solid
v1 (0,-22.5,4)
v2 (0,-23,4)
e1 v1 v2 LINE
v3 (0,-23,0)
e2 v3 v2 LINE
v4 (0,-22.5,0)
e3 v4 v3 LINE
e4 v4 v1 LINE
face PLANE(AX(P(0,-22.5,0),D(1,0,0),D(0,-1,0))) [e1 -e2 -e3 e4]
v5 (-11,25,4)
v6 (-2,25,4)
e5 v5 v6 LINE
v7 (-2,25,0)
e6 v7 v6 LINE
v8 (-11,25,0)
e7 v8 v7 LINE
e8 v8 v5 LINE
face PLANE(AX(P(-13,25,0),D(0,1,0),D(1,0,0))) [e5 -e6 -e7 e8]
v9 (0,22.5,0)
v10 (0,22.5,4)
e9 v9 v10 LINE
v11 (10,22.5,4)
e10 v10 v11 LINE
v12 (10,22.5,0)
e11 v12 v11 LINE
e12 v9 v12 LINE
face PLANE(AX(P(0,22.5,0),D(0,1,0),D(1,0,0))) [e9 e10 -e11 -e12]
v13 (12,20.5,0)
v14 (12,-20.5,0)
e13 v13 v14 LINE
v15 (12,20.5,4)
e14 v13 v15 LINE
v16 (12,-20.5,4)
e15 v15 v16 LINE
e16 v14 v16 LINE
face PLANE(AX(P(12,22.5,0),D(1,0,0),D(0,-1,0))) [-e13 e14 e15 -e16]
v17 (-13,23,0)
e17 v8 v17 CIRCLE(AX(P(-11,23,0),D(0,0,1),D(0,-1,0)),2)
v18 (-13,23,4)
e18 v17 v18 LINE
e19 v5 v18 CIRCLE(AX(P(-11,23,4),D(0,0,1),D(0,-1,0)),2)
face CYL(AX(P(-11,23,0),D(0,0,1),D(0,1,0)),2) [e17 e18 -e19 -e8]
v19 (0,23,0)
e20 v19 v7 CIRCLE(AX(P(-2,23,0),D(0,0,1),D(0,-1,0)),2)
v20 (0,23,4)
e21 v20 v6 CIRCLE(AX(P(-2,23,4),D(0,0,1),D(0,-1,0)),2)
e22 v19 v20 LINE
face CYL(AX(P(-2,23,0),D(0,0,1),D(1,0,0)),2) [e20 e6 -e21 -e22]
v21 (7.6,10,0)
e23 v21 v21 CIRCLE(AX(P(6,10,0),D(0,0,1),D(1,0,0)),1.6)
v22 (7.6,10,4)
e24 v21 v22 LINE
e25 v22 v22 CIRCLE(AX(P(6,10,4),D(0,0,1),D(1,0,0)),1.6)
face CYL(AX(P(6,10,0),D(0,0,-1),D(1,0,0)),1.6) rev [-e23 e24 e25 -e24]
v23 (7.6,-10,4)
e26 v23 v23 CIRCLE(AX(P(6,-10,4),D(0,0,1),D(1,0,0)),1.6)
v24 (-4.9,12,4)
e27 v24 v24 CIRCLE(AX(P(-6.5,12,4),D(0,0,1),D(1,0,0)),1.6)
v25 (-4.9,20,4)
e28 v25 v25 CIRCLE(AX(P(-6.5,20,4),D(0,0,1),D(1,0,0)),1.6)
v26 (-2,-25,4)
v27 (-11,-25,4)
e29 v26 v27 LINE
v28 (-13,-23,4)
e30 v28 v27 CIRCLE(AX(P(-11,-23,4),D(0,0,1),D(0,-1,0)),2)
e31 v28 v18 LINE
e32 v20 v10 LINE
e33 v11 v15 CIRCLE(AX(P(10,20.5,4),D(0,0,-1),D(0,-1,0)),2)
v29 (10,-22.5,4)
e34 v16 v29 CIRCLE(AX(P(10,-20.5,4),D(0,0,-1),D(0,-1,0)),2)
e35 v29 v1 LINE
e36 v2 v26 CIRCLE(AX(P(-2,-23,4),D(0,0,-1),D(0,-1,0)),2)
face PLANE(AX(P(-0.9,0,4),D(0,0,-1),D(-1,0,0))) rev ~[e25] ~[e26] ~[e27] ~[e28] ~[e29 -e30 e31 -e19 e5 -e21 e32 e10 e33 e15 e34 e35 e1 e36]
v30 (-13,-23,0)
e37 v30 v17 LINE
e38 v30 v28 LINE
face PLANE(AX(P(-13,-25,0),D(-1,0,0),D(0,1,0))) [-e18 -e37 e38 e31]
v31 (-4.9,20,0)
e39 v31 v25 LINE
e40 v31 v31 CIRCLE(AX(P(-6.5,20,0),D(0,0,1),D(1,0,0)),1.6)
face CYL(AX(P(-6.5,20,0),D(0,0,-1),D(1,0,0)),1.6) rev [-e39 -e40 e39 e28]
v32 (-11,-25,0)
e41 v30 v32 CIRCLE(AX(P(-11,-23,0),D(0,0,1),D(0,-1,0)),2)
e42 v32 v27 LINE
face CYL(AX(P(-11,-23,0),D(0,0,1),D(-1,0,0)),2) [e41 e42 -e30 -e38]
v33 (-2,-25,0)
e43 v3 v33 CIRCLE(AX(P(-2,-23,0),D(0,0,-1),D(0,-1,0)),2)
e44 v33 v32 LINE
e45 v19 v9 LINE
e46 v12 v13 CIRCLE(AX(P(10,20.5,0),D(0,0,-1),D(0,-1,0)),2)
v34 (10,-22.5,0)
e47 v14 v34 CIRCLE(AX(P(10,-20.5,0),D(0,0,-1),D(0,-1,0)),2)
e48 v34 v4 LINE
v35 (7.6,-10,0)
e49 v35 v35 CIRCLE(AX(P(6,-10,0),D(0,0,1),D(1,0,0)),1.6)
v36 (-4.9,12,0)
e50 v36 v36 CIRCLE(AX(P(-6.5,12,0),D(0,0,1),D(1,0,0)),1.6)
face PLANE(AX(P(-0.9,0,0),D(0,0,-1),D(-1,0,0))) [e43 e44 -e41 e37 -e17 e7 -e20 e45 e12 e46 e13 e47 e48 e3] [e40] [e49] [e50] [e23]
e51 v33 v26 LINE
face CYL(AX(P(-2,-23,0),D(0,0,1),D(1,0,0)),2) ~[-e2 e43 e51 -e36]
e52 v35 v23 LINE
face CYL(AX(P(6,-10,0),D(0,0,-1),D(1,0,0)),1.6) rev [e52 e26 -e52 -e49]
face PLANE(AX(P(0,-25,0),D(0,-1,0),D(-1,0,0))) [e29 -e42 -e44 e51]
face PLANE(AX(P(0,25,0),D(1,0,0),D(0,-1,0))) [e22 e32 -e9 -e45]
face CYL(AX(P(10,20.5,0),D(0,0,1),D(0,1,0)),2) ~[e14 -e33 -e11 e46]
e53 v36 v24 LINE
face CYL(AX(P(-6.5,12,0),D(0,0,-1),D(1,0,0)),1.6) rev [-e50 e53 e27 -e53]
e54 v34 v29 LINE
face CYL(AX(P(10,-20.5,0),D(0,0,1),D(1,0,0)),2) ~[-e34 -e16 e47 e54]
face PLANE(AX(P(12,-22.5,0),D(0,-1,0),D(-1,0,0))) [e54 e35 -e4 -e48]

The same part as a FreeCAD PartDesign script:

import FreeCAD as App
import Part
import Sketcher
Q = App.Units.Quantity


def edges_at(feature, points):
    """Names of the edges that pass closest to the given points."""
    edges = feature.Shape.Edges
    near = lambda p: min(range(len(edges)), key=lambda i: edges[i].distToShape(Part.Vertex(*p))[0])
    return sorted({f"Edge{near(p) + 1}" for p in points})


def add_polygon(sketch, points):
    """Adds a closed chain of lines whose ends are joined by coincident constraints."""
    first, n = sketch.GeometryCount, len(points)
    for a, b in zip(points, points[1:] + points[:1]):
        sketch.addGeometry(Part.LineSegment(App.Vector(*a, 0), App.Vector(*b, 0)), False)
    for i in range(n):
        sketch.addConstraint(Sketcher.Constraint("Coincident", first + i, 2, first + (i + 1) % n, 1))

doc = App.newDocument("Part")
body = doc.addObject("PartDesign::Body", "Body")

# Sketch on XY plane
sketch1 = body.newObject("Sketcher::SketchObject", "Sketch")
sketch1.AttachmentSupport = (doc.getObject("XY_Plane"), [""])
sketch1.MapMode = "FlatFace"
add_polygon(sketch1, [(12, 22.5), (0, 22.5), (0, 25), (-13, 25), (-13, -25), (0, -25), (0, -22.5), (12, -22.5)])  # lines 0-7
sketch1.addGeometry(Part.Circle(App.Vector(6, -10, 0), App.Vector(0, 0, 1), 1.6), False)  # 8
sketch1.addGeometry(Part.Circle(App.Vector(6, 10, 0), App.Vector(0, 0, 1), 1.6), False)  # 9
sketch1.addGeometry(Part.Circle(App.Vector(-6.5, 12, 0), App.Vector(0, 0, 1), 1.6), False)  # 10
sketch1.addGeometry(Part.Circle(App.Vector(-6.5, 20, 0), App.Vector(0, 0, 1), 1.6), False)  # 11
sketch1.addConstraint([
    Sketcher.Constraint("Horizontal", 0),
    Sketcher.Constraint("Vertical", 1),
    Sketcher.Constraint("Horizontal", 2),
    Sketcher.Constraint("Vertical", 3),
    Sketcher.Constraint("Horizontal", 4),
    Sketcher.Constraint("Vertical", 5),
    Sketcher.Constraint("Horizontal", 6),
    Sketcher.Constraint("Vertical", 7),
    Sketcher.Constraint("Equal", 8, 9),
    Sketcher.Constraint("Equal", 9, 10),
    Sketcher.Constraint("Equal", 10, 11),
    Sketcher.Constraint("Symmetric", 1, 2, 4, 2, -1, 1),
    Sketcher.Constraint("Symmetric", 8, 3, 9, 3, -1),
    Sketcher.Constraint("Symmetric", 0, 2, 5, 2, -1),
    Sketcher.Constraint("Vertical", 10, 3, 11, 3),
    Sketcher.Constraint("Diameter", 8, Q("3.2 mm")),
    Sketcher.Constraint("DistanceX", 0, 2, 0, 1, Q("12 mm")),
    Sketcher.Constraint("DistanceX", 2, 2, 2, 1, Q("13 mm")),
    Sketcher.Constraint("DistanceY", 3, 2, 3, 1, Q("50 mm")),
    Sketcher.Constraint("DistanceY", 7, 1, 7, 2, Q("45 mm")),
    Sketcher.Constraint("DistanceX", -1, 1, 8, 3, Q("6 mm")),
    Sketcher.Constraint("DistanceY", 8, 3, -1, 1, Q("10 mm")),
    Sketcher.Constraint("DistanceY", -1, 1, 10, 3, Q("12 mm")),
    Sketcher.Constraint("DistanceY", -1, 1, 11, 3, Q("20 mm")),
    Sketcher.Constraint("DistanceX", 10, 3, -1, 1, Q("6.5 mm")),
])
pad1 = body.newObject("PartDesign::Pad", "Pad")
pad1.Profile = sketch1
pad1.Length = 4
doc.recompute()

fillet = body.newObject("PartDesign::Fillet", "Fillet")
fillet.Base = (pad1, edges_at(pad1, [
    (12, 22.5, 2),
    (0, 25, 2),
    (-13, 25, 2),
    (-13, -25, 2),
    (0, -25, 2),
    (12, -22.5, 2),
]))
fillet.Radius = 2

doc.recompute()
